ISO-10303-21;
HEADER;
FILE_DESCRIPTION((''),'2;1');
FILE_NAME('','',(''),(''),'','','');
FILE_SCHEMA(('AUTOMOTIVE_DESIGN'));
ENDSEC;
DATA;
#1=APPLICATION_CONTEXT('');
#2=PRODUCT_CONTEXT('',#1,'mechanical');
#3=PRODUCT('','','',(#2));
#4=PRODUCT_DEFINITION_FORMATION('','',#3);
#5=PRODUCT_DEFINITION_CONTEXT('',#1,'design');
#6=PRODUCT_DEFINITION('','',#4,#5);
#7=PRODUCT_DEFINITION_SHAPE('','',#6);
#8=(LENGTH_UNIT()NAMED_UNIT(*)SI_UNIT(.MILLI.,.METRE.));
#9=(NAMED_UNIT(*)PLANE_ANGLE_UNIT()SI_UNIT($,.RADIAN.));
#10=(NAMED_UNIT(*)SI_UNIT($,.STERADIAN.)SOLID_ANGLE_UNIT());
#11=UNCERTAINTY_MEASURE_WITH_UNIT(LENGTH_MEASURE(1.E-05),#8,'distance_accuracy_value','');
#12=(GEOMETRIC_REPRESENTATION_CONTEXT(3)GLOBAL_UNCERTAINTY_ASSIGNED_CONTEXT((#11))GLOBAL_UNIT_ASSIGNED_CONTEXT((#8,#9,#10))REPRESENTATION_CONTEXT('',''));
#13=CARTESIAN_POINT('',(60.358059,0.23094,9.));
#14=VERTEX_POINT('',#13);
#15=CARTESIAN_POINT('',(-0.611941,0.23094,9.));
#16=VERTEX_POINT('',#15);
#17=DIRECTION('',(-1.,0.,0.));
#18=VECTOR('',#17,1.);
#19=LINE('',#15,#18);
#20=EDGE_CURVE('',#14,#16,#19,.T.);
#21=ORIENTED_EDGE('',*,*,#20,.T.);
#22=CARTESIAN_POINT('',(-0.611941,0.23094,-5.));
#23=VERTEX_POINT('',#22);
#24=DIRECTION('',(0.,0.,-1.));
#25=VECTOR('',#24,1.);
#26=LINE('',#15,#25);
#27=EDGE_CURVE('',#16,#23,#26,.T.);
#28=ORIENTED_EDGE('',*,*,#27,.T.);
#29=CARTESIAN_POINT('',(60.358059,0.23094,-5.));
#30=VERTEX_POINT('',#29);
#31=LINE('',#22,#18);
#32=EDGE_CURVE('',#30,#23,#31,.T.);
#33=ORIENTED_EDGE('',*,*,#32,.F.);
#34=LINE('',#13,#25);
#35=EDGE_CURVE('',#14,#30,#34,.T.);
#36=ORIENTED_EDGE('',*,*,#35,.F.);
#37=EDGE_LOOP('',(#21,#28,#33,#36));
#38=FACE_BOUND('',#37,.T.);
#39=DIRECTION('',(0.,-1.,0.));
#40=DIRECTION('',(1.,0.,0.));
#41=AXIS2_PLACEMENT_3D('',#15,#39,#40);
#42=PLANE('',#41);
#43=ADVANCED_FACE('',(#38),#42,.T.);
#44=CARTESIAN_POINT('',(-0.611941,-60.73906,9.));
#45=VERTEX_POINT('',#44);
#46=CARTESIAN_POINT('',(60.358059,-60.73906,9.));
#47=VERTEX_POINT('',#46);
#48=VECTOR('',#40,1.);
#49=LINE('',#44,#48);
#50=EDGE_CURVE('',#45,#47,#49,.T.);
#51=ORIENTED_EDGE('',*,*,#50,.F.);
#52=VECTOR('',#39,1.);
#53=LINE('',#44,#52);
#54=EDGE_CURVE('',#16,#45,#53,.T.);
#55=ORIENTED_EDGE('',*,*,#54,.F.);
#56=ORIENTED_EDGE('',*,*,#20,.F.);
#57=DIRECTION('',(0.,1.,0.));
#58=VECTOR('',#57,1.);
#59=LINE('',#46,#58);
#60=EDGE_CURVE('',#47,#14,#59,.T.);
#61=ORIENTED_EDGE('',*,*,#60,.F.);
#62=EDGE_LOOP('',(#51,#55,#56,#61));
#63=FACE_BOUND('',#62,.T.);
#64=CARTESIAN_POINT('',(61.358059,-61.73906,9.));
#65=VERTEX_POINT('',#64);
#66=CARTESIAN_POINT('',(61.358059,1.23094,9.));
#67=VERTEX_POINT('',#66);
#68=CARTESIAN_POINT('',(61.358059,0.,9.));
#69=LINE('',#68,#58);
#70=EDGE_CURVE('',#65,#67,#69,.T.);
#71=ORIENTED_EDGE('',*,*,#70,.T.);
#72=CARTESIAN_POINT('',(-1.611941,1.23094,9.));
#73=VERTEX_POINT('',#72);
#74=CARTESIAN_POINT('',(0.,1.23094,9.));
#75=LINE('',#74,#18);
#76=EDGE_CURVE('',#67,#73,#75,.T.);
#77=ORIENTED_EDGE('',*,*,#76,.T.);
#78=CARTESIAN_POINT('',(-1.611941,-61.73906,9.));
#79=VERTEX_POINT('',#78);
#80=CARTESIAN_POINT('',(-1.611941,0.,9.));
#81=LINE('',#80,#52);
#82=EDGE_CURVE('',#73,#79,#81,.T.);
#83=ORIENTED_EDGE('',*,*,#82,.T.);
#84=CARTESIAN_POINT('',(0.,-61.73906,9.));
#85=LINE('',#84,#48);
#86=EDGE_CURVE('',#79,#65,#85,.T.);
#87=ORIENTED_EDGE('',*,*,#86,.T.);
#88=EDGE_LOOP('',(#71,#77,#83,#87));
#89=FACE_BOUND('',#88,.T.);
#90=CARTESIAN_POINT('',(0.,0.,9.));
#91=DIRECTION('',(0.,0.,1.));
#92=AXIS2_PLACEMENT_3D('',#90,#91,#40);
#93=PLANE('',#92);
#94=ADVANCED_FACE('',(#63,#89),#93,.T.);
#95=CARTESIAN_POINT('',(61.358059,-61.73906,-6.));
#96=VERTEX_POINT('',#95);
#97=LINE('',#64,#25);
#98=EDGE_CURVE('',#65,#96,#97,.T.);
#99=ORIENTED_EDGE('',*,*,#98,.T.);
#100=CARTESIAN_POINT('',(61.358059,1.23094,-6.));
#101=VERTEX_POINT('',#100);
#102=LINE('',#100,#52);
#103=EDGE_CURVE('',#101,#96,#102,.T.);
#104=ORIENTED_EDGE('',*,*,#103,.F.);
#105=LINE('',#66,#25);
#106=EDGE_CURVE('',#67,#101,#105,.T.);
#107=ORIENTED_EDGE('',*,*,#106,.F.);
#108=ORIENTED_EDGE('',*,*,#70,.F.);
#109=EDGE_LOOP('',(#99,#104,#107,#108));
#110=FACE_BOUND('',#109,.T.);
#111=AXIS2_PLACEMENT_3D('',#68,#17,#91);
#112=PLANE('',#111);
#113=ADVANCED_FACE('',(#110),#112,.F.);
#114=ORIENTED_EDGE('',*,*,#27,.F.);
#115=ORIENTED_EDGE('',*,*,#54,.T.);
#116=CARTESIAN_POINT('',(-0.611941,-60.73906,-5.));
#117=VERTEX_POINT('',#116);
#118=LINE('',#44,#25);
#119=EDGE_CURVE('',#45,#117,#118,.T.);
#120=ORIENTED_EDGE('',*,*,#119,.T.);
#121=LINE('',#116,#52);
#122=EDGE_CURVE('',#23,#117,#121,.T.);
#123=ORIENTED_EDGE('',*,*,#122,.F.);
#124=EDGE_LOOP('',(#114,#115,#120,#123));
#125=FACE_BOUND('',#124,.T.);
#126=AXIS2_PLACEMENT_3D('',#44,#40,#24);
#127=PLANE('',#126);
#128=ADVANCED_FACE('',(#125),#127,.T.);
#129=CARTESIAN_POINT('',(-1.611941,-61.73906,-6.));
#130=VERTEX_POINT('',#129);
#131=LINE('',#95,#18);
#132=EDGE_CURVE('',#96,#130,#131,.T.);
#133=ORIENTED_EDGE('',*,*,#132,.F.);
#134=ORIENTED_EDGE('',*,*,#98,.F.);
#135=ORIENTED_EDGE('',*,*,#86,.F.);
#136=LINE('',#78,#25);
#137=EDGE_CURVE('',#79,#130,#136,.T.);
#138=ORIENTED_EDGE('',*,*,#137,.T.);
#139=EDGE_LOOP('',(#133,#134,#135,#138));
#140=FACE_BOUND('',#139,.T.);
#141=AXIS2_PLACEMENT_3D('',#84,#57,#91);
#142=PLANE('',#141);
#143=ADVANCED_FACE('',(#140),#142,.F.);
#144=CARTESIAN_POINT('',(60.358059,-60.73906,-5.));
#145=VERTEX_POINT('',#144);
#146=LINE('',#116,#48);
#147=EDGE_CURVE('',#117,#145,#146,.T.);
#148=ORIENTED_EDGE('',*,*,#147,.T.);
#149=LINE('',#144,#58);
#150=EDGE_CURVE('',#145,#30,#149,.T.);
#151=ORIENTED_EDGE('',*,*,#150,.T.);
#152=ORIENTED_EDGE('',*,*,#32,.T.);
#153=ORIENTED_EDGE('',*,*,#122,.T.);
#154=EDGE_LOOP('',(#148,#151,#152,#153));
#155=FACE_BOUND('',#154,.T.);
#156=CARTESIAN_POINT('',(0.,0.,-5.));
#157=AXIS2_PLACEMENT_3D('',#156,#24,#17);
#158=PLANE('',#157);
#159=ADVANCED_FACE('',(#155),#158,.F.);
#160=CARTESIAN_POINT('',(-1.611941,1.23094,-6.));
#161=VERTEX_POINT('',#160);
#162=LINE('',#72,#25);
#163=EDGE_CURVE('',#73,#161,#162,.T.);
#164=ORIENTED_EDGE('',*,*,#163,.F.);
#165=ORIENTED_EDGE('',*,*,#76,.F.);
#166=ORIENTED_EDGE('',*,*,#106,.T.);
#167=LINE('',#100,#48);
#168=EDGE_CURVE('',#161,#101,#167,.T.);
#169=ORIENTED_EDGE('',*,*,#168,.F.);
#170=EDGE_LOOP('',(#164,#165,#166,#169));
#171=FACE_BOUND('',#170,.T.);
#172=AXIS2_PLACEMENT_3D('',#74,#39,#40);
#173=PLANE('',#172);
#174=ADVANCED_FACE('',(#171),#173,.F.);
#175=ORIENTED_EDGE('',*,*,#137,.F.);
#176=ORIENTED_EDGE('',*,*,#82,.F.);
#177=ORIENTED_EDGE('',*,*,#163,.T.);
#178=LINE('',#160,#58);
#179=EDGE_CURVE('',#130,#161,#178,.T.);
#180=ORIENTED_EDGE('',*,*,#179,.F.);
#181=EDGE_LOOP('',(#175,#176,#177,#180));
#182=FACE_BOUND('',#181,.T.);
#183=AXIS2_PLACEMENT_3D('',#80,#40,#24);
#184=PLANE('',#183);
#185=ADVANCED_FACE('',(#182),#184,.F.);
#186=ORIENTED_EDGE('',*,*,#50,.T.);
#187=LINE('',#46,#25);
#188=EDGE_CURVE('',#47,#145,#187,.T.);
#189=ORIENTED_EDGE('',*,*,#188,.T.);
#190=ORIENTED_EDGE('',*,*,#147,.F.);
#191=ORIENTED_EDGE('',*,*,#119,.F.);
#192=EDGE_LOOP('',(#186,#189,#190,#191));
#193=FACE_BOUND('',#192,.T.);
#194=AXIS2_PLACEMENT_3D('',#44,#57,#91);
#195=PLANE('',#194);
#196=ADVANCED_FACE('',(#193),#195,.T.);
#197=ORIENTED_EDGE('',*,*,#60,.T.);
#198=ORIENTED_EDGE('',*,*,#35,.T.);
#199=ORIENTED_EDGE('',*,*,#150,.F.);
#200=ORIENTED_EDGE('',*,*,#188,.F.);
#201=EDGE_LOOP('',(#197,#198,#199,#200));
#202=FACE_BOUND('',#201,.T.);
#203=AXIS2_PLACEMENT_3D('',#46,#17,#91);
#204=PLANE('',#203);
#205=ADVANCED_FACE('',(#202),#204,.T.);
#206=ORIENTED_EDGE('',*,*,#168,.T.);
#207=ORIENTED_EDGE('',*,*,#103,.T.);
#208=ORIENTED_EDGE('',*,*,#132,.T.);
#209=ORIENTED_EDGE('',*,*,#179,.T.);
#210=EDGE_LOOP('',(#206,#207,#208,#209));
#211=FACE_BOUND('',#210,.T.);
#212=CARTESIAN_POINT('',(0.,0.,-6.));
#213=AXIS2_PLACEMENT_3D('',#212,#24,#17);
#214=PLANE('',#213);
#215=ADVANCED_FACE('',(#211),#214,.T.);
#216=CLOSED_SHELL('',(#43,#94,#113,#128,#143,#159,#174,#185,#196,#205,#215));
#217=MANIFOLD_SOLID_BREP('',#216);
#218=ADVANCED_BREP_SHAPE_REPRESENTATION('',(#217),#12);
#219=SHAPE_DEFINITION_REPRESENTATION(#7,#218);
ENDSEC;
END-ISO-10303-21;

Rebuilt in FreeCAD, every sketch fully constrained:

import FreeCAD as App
import Part
import Sketcher

V = App.Vector

doc = App.newDocument("Part")
body = doc.addObject("PartDesign::Body", "Body")

# Sketch on XY plane
sketch1 = doc.addObject("Sketcher::SketchObject", "Sketch")
body.addObject(sketch1)
sketch1.AttachmentSupport = (doc.XY_Plane, [""])
sketch1.MapMode = "FlatFace"
sketch1.AttachmentOffset = App.Placement(V(0, 0, -5), App.Rotation())
sketch1.addGeometry(Part.LineSegment(V(-2, 1, 0), V(-2, -62, 0)), False)
sketch1.addGeometry(Part.LineSegment(V(-2, -62, 0), V(61, -62, 0)), False)
sketch1.addGeometry(Part.LineSegment(V(61, -62, 0), V(61, 1, 0)), False)
sketch1.addGeometry(Part.LineSegment(V(61, 1, 0), V(-2, 1, 0)), False)
sketch1.addGeometry(Part.LineSegment(V(60, -61, 0), V(-1, -61, 0)), False)
sketch1.addGeometry(Part.LineSegment(V(-1, -61, 0), V(-1, 0, 0)), False)
sketch1.addGeometry(Part.LineSegment(V(-1, 0, 0), V(60, 0, 0)), False)
sketch1.addGeometry(Part.LineSegment(V(60, 0, 0), V(60, -61, 0)), False)
sketch1.addConstraint(Sketcher.Constraint("Coincident", 0, 2, 1, 1))
sketch1.addConstraint(Sketcher.Constraint("Coincident", 1, 2, 2, 1))
sketch1.addConstraint(Sketcher.Constraint("Coincident", 2, 2, 3, 1))
sketch1.addConstraint(Sketcher.Constraint("Coincident", 3, 2, 0, 1))
sketch1.addConstraint(Sketcher.Constraint("Coincident", 4, 2, 5, 1))
sketch1.addConstraint(Sketcher.Constraint("Coincident", 5, 2, 6, 1))
sketch1.addConstraint(Sketcher.Constraint("Coincident", 6, 2, 7, 1))
sketch1.addConstraint(Sketcher.Constraint("Coincident", 7, 2, 4, 1))
sketch1.addConstraint(Sketcher.Constraint("Vertical", 0))
sketch1.addConstraint(Sketcher.Constraint("Horizontal", 1))
sketch1.addConstraint(Sketcher.Constraint("Vertical", 2))
sketch1.addConstraint(Sketcher.Constraint("Horizontal", 3))
sketch1.addConstraint(Sketcher.Constraint("Horizontal", 4))
sketch1.addConstraint(Sketcher.Constraint("Vertical", 5))
sketch1.addConstraint(Sketcher.Constraint("Horizontal", 6))
sketch1.addConstraint(Sketcher.Constraint("Vertical", 7))
sketch1.addConstraint(Sketcher.Constraint("Equal", 3, 0))
sketch1.addConstraint(Sketcher.Constraint("Equal", 6, 5))
sketch1.addConstraint(Sketcher.Constraint("DistanceX", 0, 2, 4, 2, 1.0))
sketch1.addConstraint(Sketcher.Constraint("DistanceY", 0, 2, 4, 2, 1.0))
sketch1.addConstraint(Sketcher.Constraint("DistanceY", 5, 2, 3, 2, 1.0))
sketch1.addConstraint(Sketcher.Constraint("DistanceX", 1, 1, 1, 2, 62.97))
sketch1.addConstraint(Sketcher.Constraint("DistanceX", 0, 2, -1, 1, 1.611941))
sketch1.addConstraint(Sketcher.Constraint("DistanceY", 0, 2, -1, 1, 61.73906))
pad1 = doc.addObject("PartDesign::Pad", "Pad")
body.addObject(pad1)
pad1.Profile = sketch1
pad1.Length = 14

# Sketch on XY plane
sketch2 = doc.addObject("Sketcher::SketchObject", "Sketch001")
body.addObject(sketch2)
sketch2.AttachmentSupport = (doc.XY_Plane, [""])
sketch2.MapMode = "FlatFace"
sketch2.AttachmentOffset = App.Placement(V(0, 0, -5), App.Rotation())
sketch2.addGeometry(Part.LineSegment(V(61, 1, 0), V(61, -62, 0)), False)
sketch2.addGeometry(Part.LineSegment(V(61, -62, 0), V(-2, -62, 0)), False)
sketch2.addGeometry(Part.LineSegment(V(-2, -62, 0), V(-2, 1, 0)), False)
sketch2.addGeometry(Part.LineSegment(V(-2, 1, 0), V(61, 1, 0)), False)
sketch2.addConstraint(Sketcher.Constraint("Coincident", 0, 2, 1, 1))
sketch2.addConstraint(Sketcher.Constraint("Coincident", 1, 2, 2, 1))
sketch2.addConstraint(Sketcher.Constraint("Coincident", 2, 2, 3, 1))
sketch2.addConstraint(Sketcher.Constraint("Coincident", 3, 2, 0, 1))
sketch2.addConstraint(Sketcher.Constraint("Vertical", 0))
sketch2.addConstraint(Sketcher.Constraint("Horizontal", 1))
sketch2.addConstraint(Sketcher.Constraint("Vertical", 2))
sketch2.addConstraint(Sketcher.Constraint("Horizontal", 3))
sketch2.addConstraint(Sketcher.Constraint("Equal", 3, 0))
sketch2.addConstraint(Sketcher.Constraint("DistanceX", 1, 2, 1, 1, 62.97))
sketch2.addConstraint(Sketcher.Constraint("DistanceX", -1, 1, 0, 2, 61.358059))
sketch2.addConstraint(Sketcher.Constraint("DistanceY", 0, 2, -1, 1, 61.73906))
pad2 = doc.addObject("PartDesign::Pad", "Pad001")
body.addObject(pad2)
pad2.Profile = sketch2
pad2.Length = 1
pad2.Reversed = True

doc.recompute()
